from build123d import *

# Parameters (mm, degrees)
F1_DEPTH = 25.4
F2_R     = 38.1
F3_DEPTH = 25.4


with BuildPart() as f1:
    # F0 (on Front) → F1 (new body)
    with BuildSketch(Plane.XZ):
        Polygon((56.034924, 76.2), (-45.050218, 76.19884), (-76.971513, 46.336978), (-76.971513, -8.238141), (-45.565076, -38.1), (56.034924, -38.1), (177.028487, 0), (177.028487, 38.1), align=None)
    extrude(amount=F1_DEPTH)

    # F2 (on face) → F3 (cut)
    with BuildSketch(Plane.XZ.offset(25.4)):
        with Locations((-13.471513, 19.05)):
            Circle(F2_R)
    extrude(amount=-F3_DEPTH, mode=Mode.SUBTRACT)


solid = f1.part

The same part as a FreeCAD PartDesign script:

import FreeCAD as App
import Part
import Sketcher
from FreeCAD import Vector
Q = App.Units.Quantity

doc = App.newDocument("Part")
body = doc.addObject("PartDesign::Body", "Body")

# Sketch on XZ plane
sketch1 = doc.addObject("Sketcher::SketchObject", "Sketch")
body.addObject(sketch1)
sketch1.AttachmentSupport = (doc.XZ_Plane, [""])
sketch1.MapMode = "FlatFace"
sketch1.addGeometry([
    Part.LineSegment(Vector(56, 76, 0), Vector(-45, 76, 0)),  # 0
    Part.LineSegment(Vector(-45, 76, 0), Vector(-77, 46, 0)),  # 1
    Part.LineSegment(Vector(-77, 46, 0), Vector(-77, -8, 0)),  # 2
    Part.LineSegment(Vector(-77, -8, 0), Vector(-46, -38, 0)),  # 3
    Part.LineSegment(Vector(-46, -38, 0), Vector(56, -38, 0)),  # 4
    Part.LineSegment(Vector(56, -38, 0), Vector(177, 0, 0)),  # 5
    Part.LineSegment(Vector(177, 0, 0), Vector(177, 38, 0)),  # 6
    Part.LineSegment(Vector(177, 38, 0), Vector(56, 76, 0)),  # 7
], False)
sketch1.addConstraint([
    Sketcher.Constraint("Coincident", 0, 2, 1, 1),
    Sketcher.Constraint("Coincident", 1, 2, 2, 1),
    Sketcher.Constraint("Coincident", 2, 2, 3, 1),
    Sketcher.Constraint("Coincident", 3, 2, 4, 1),
    Sketcher.Constraint("Coincident", 4, 2, 5, 1),
    Sketcher.Constraint("Coincident", 5, 2, 6, 1),
    Sketcher.Constraint("Coincident", 6, 2, 7, 1),
    Sketcher.Constraint("Coincident", 7, 2, 0, 1),
    Sketcher.Constraint("Vertical", 2),
    Sketcher.Constraint("Horizontal", 4),
    Sketcher.Constraint("Vertical", 6),
    Sketcher.Constraint("PointOnObject", 5, 2, -1),
    Sketcher.Constraint("Vertical", 4, 2, 7, 2),
    Sketcher.Constraint("Equal", 5, 7),
    Sketcher.Constraint("DistanceX", 4, 1, 4, 2, Q("4 in")),
    Sketcher.Constraint("DistanceY", 6, 1, 6, 2, Q("1.5 in")),
    Sketcher.Constraint("DistanceY", -1, 1, 7, 2, Q("3 in")),
    Sketcher.Constraint("DistanceX", 2, 2, 5, 2, Q("10 in")),
    Sketcher.Constraint("DistanceY", 2, 2, 2, 1, Q("54.575119 mm")),
    Sketcher.Constraint("Distance", 5, Q("126.850512 mm")),
    Sketcher.Constraint("DistanceY", -1, 1, 0, 2, Q("76.19884 mm")),
    Sketcher.Constraint("DistanceY", -1, 1, 1, 2, Q("46.336978 mm")),
    Sketcher.Constraint("DistanceX", 0, 2, 4, 2, Q("101.085142 mm")),
    Sketcher.Constraint("DistanceX", 0, 2, -1, 1, Q("45.050218 mm")),
])
pad1 = doc.addObject("PartDesign::Pad", "Pad")
body.addObject(pad1)
pad1.Profile = sketch1
pad1.Length = Q("1 in")

# Sketch on XZ plane
sketch2 = doc.addObject("Sketcher::SketchObject", "Sketch001")
body.addObject(sketch2)
sketch2.AttachmentSupport = (doc.XZ_Plane, [""])
sketch2.MapMode = "FlatFace"
sketch2.AttachmentOffset = App.Placement(Vector(0, 0, 1 * 25.4), App.Rotation())
sketch2.addGeometry(Part.Circle(Vector(-13, 19, 0), Vector(0, 0, 1), 38), False)
sketch2.addConstraint([
    Sketcher.Constraint("Diameter", 0, Q("3 in")),
    Sketcher.Constraint("DistanceY", -1, 1, 0, 3, Q("0.75 in")),
    Sketcher.Constraint("DistanceX", 0, 3, -1, 1, Q("13.471513 mm")),
])
pocket1 = doc.addObject("PartDesign::Pocket", "Pocket")
body.addObject(pocket1)
pocket1.Profile = sketch2
pocket1.Length = Q("1 in")

doc.recompute()
